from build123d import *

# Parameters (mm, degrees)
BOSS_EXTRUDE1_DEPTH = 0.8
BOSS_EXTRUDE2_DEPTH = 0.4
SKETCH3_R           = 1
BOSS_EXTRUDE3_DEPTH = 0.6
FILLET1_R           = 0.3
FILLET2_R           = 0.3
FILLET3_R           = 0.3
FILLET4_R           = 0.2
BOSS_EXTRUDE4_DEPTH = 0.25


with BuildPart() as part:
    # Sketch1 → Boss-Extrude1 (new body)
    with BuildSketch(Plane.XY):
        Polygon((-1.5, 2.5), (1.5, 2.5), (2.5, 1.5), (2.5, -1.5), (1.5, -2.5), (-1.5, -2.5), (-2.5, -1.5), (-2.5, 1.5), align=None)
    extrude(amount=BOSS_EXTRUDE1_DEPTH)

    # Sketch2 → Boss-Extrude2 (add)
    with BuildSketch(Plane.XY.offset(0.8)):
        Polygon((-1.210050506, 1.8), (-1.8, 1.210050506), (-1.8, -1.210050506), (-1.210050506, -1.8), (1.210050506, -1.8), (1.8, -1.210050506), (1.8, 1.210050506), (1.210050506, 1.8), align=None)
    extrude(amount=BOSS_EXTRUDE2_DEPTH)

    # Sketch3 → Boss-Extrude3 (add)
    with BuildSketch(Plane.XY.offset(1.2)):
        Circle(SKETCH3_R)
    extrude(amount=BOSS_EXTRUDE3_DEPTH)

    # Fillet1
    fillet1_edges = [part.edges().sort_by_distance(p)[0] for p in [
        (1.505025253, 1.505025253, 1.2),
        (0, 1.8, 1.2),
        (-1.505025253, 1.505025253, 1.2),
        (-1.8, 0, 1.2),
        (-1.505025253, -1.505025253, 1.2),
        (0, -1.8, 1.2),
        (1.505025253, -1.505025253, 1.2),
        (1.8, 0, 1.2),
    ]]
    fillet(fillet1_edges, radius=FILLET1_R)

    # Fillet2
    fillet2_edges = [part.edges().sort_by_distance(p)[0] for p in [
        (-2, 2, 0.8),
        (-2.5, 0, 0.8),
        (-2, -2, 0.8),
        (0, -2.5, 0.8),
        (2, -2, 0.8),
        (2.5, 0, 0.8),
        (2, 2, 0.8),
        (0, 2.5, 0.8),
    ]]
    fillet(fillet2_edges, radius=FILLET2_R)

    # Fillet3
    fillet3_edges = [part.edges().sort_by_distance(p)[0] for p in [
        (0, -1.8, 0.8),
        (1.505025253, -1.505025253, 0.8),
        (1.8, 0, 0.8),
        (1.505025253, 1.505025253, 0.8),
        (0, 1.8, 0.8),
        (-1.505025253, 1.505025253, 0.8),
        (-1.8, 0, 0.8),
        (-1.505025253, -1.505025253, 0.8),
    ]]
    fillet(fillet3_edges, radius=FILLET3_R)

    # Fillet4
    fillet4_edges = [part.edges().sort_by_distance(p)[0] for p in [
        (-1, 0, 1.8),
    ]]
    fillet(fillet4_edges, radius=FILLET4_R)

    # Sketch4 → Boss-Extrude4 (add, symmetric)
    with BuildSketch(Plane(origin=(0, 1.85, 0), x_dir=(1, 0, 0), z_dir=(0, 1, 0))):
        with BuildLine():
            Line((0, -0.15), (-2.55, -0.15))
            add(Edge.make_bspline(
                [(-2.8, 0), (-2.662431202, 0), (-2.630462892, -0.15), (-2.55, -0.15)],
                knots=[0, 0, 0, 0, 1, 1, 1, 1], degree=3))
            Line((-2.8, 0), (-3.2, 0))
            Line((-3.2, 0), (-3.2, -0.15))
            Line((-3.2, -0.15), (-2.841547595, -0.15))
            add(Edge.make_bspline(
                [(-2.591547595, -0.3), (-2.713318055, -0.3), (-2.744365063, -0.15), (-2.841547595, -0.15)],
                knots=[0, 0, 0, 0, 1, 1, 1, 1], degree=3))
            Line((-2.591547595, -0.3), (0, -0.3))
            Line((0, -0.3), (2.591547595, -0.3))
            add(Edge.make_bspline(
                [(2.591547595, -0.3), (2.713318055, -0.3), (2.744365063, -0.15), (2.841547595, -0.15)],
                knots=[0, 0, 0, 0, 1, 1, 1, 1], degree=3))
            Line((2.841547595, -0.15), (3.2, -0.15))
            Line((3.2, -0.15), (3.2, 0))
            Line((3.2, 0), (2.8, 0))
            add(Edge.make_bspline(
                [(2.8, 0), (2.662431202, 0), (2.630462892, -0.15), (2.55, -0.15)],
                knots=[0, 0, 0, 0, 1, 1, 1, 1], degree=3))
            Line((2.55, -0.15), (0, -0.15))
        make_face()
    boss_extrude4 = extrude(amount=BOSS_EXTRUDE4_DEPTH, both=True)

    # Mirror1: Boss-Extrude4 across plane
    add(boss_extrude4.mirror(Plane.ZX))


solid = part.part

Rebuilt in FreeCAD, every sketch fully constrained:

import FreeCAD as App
import Part
import Sketcher
Q = App.Units.Quantity


def edges_at(feature, points):
    """Names of the edges that pass closest to the given points."""
    edges = feature.Shape.Edges
    near = lambda p: min(range(len(edges)), key=lambda i: edges[i].distToShape(Part.Vertex(*p))[0])
    return sorted({f"Edge{near(p) + 1}" for p in points})


def add_polygon(sketch, points):
    """Adds a closed chain of lines whose ends are joined by coincident constraints."""
    first, n = sketch.GeometryCount, len(points)
    for a, b in zip(points, points[1:] + points[:1]):
        sketch.addGeometry(Part.LineSegment(App.Vector(*a, 0), App.Vector(*b, 0)), False)
    for i in range(n):
        sketch.addConstraint(Sketcher.Constraint("Coincident", first + i, 2, first + (i + 1) % n, 1))

doc = App.newDocument("Part")
body = doc.addObject("PartDesign::Body", "Body")

# Sketch on XY plane
sketch1 = body.newObject("Sketcher::SketchObject", "Sketch")
sketch1.AttachmentSupport = (doc.getObject("XY_Plane"), [""])
sketch1.MapMode = "FlatFace"
add_polygon(sketch1, [(1.5, 2.5), (-1.5, 2.5), (-2.5, 1.5), (-2.5, -1.5), (-1.5, -2.5), (1.5, -2.5), (2.5, -1.5), (2.5, 1.5)])  # lines 0-7
sketch1.addConstraint([
    Sketcher.Constraint("Horizontal", 0),
    Sketcher.Constraint("Vertical", 2),
    Sketcher.Constraint("Horizontal", 4),
    Sketcher.Constraint("Vertical", 6),
    Sketcher.Constraint("Symmetric", 0, 2, 4, 2, -1, 1),
    Sketcher.Constraint("Symmetric", 1, 2, 5, 2, -1, 1),
    Sketcher.Constraint("Perpendicular", 1, 3),
    Sketcher.Constraint("Perpendicular", 5, 7),
    Sketcher.Constraint("Horizontal", 2, 2, 5, 2),
    Sketcher.Constraint("Horizontal", 1, 2, 6, 2),
    Sketcher.Constraint("Vertical", 0, 2, 3, 2),
    Sketcher.Constraint("Equal", 4, 2),
    Sketcher.Constraint("DistanceX", 0, 2, 0, 1, Q("3 mm")),
    Sketcher.Constraint("DistanceX", 1, 2, 0, 2, Q("1 mm")),
])
pad1 = body.newObject("PartDesign::Pad", "Pad")
pad1.Profile = sketch1
pad1.Length = 0.8

# Sketch on XY plane
sketch2 = body.newObject("Sketcher::SketchObject", "Sketch001")
sketch2.AttachmentSupport = (doc.getObject("XY_Plane"), [""])
sketch2.MapMode = "FlatFace"
sketch2.AttachmentOffset = App.Placement(App.Vector(0, 0, 0.8), App.Rotation())
add_polygon(sketch2, [(-1.2, 1.8), (-1.8, 1.2), (-1.8, -1.2), (-1.2, -1.8), (1.2, -1.8), (1.8, -1.2), (1.8, 1.2), (1.2, 1.8)])  # lines 0-7
sketch2.addConstraint([
    Sketcher.Constraint("Vertical", 1),
    Sketcher.Constraint("Horizontal", 3),
    Sketcher.Constraint("Vertical", 5),
    Sketcher.Constraint("Horizontal", 7),
    Sketcher.Constraint("Symmetric", 0, 2, 4, 2, -1, 1),
    Sketcher.Constraint("Symmetric", 2, 2, 6, 2, -1, 1),
    Sketcher.Constraint("Perpendicular", 0, 2),
    Sketcher.Constraint("Perpendicular", 2, 4),
    Sketcher.Constraint("Perpendicular", 4, 6),
    Sketcher.Constraint("Horizontal", 1, 2, 4, 2),
    Sketcher.Constraint("Vertical", 3, 2, 6, 2),
    Sketcher.Constraint("Equal", 7, 1),
    Sketcher.Constraint("DistanceX", 0, 2, -1, 1, Q("1.8 mm")),
    Sketcher.Constraint("DistanceX", 3, 1, 3, 2, Q("2.420101 mm")),
])
pad2 = body.newObject("PartDesign::Pad", "Pad001")
pad2.Profile = sketch2
pad2.Length = 0.4

# Sketch on XY plane
sketch3 = body.newObject("Sketcher::SketchObject", "Sketch002")
sketch3.AttachmentSupport = (doc.getObject("XY_Plane"), [""])
sketch3.MapMode = "FlatFace"
sketch3.AttachmentOffset = App.Placement(App.Vector(0, 0, 1.2), App.Rotation())
sketch3.addGeometry(Part.Circle(App.Vector(0, 0, 0), App.Vector(0, 0, 1), 1), False)
sketch3.addConstraint([
    Sketcher.Constraint("Coincident", 0, 3, -1, 1),
    Sketcher.Constraint("Diameter", 0, Q("2 mm")),
])
pad3 = body.newObject("PartDesign::Pad", "Pad002")
pad3.Profile = sketch3
pad3.Length = 0.6
doc.recompute()

fillet = body.newObject("PartDesign::Fillet", "Fillet")
fillet.Base = (pad3, edges_at(pad3, [
    (1.505, 1.505, 1.2),
    (0, 1.8, 1.2),
    (-1.505, 1.505, 1.2),
    (-1.8, 0, 1.2),
    (-1.505, -1.505, 1.2),
    (0, -1.8, 1.2),
    (1.505, -1.505, 1.2),
    (1.8, 0, 1.2),
]))
fillet.Radius = 0.3
doc.recompute()

fillet2 = body.newObject("PartDesign::Fillet", "Fillet001")
fillet2.Base = (fillet, edges_at(fillet, [
    (-2, 2, 0.8),
    (-2.5, 0, 0.8),
    (-2, -2, 0.8),
    (0, -2.5, 0.8),
    (2, -2, 0.8),
    (2.5, 0, 0.8),
    (2, 2, 0.8),
    (0, 2.5, 0.8),
]))
fillet2.Radius = 0.3
doc.recompute()

fillet3 = body.newObject("PartDesign::Fillet", "Fillet002")
fillet3.Base = (fillet2, edges_at(fillet2, [
    (0, -1.8, 0.8),
    (1.505, -1.505, 0.8),
    (1.8, 0, 0.8),
    (1.505, 1.505, 0.8),
    (0, 1.8, 0.8),
    (-1.505, 1.505, 0.8),
    (-1.8, 0, 0.8),
    (-1.505, -1.505, 0.8),
]))
fillet3.Radius = 0.3
doc.recompute()

fillet4 = body.newObject("PartDesign::Fillet", "Fillet003")
fillet4.Base = (fillet3, edges_at(fillet3, [(-1, 0, 1.8)]))
fillet4.Radius = 0.2

# Sketch on XZ plane
sketch4 = body.newObject("Sketcher::SketchObject", "Sketch003")
sketch4.AttachmentSupport = (doc.getObject("XZ_Plane"), [""])
sketch4.MapMode = "FlatFace"
sketch4.AttachmentOffset = App.Placement(App.Vector(0, 0, -1.85), App.Rotation())
sketch4.addGeometry([
    Part.BSplineCurve([App.Vector(-2.8, 0, 0), App.Vector(-2.662431, 0, 0), App.Vector(-2.630463, 0.15, 0), App.Vector(-2.55, 0.15, 0)], [4, 4], [0, 1], False, 3, [1, 1, 1, 1], False),  # 0
    Part.LineSegment(App.Vector(-2.8, 0, 0), App.Vector(-3.2, 0, 0)),  # 1
    Part.LineSegment(App.Vector(-3.2, 0, 0), App.Vector(-3.2, 0.15, 0)),  # 2
    Part.LineSegment(App.Vector(-3.2, 0.15, 0), App.Vector(-2.841548, 0.15, 0)),  # 3
    Part.BSplineCurve([App.Vector(-2.591548, 0.3, 0), App.Vector(-2.713318, 0.3, 0), App.Vector(-2.744365, 0.15, 0), App.Vector(-2.841548, 0.15, 0)], [4, 4], [0, 1], False, 3, [1, 1, 1, 1], False),  # 4
    Part.LineSegment(App.Vector(-2.591548, 0.3, 0), App.Vector(2.591548, 0.3, 0)),  # 5
    Part.BSplineCurve([App.Vector(2.591548, 0.3, 0), App.Vector(2.713318, 0.3, 0), App.Vector(2.744365, 0.15, 0), App.Vector(2.841548, 0.15, 0)], [4, 4], [0, 1], False, 3, [1, 1, 1, 1], False),  # 6
    Part.LineSegment(App.Vector(2.841548, 0.15, 0), App.Vector(3.2, 0.15, 0)),  # 7
    Part.LineSegment(App.Vector(3.2, 0.15, 0), App.Vector(3.2, 0, 0)),  # 8
    Part.LineSegment(App.Vector(3.2, 0, 0), App.Vector(2.8, 0, 0)),  # 9
    Part.BSplineCurve([App.Vector(2.8, 0, 0), App.Vector(2.662431, 0, 0), App.Vector(2.630463, 0.15, 0), App.Vector(2.55, 0.15, 0)], [4, 4], [0, 1], False, 3, [1, 1, 1, 1], False),  # 10
    Part.LineSegment(App.Vector(2.55, 0.15, 0), App.Vector(-2.55, 0.15, 0)),  # 11
], False)
sketch4.addConstraint([
    Sketcher.Constraint("Block", 0),
    Sketcher.Constraint("Block", 4),
    Sketcher.Constraint("Block", 6),
    Sketcher.Constraint("Block", 10),
    Sketcher.Constraint("Coincident", 0, 1, 1, 1),
    Sketcher.Constraint("Coincident", 1, 2, 2, 1),
    Sketcher.Constraint("Coincident", 2, 2, 3, 1),
    Sketcher.Constraint("Coincident", 3, 2, 4, 2),
    Sketcher.Constraint("Coincident", 4, 1, 5, 1),
    Sketcher.Constraint("Coincident", 5, 2, 6, 1),
    Sketcher.Constraint("Coincident", 6, 2, 7, 1),
    Sketcher.Constraint("Coincident", 7, 2, 8, 1),
    Sketcher.Constraint("Coincident", 8, 2, 9, 1),
    Sketcher.Constraint("Coincident", 9, 2, 10, 1),
    Sketcher.Constraint("Coincident", 10, 2, 11, 1),
    Sketcher.Constraint("Coincident", 11, 2, 0, 2),
    Sketcher.Constraint("Horizontal", 1),
    Sketcher.Constraint("Vertical", 2),
    Sketcher.Constraint("Horizontal", 3),
    Sketcher.Constraint("Horizontal", 7),
    Sketcher.Constraint("Vertical", 8),
    Sketcher.Constraint("Horizontal", 9),
    Sketcher.Constraint("Equal", 3, 7),
    Sketcher.Constraint("DistanceX", 1, 2, 1, 1, Q("0.4 mm")),
])
pad4 = body.newObject("PartDesign::Pad", "Pad003")
pad4.Profile = sketch4
pad4.Length = 0.5
pad4.Midplane = True
doc.recompute()

mirrored = body.newObject("PartDesign::Mirrored", "Mirrored")
mirrored.Originals = [pad4]
mirrored.MirrorPlane = (doc.getObject("XZ_Plane"), [""])
body.Tip = mirrored

doc.recompute()
